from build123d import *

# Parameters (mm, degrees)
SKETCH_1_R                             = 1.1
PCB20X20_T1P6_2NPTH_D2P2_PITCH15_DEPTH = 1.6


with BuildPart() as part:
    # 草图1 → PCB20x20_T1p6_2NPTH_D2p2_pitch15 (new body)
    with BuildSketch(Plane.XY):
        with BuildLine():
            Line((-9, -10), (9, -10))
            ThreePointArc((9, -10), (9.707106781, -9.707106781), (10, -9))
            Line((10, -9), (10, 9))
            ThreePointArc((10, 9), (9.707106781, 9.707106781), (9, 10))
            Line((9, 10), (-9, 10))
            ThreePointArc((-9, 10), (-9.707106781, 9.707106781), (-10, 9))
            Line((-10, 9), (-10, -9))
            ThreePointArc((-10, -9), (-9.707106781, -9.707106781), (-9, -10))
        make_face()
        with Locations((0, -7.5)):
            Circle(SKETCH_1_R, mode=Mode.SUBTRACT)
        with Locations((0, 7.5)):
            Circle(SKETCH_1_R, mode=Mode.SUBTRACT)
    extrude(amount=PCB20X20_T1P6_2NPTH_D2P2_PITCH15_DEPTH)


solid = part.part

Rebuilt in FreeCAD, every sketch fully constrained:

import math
import FreeCAD as App
import Part
import Sketcher
from FreeCAD import Vector

doc = App.newDocument("Part")
body = doc.addObject("PartDesign::Body", "Body")

sketch1 = body.newObject("Sketcher::SketchObject", "Sketch")
sketch1.AttachmentSupport = (doc.getObject("XY_Plane"), [""])
sketch1.MapMode = "FlatFace"
sketch1.addGeometry(Part.LineSegment(Vector(-9, -10, 0), Vector(9, -10, 0)), False)
sketch1.addGeometry(Part.ArcOfCircle(Part.Circle(Vector(9, -9, 0), Vector(0, 0, 1), 1), math.radians(-90), math.radians(0)), False)
sketch1.addGeometry(Part.LineSegment(Vector(10, -9, 0), Vector(10, 9, 0)), False)
sketch1.addGeometry(Part.ArcOfCircle(Part.Circle(Vector(9, 9, 0), Vector(0, 0, 1), 1), math.radians(0), math.radians(90)), False)
sketch1.addGeometry(Part.LineSegment(Vector(9, 10, 0), Vector(-9, 10, 0)), False)
sketch1.addGeometry(Part.ArcOfCircle(Part.Circle(Vector(-9, 9, 0), Vector(0, 0, 1), 1), math.radians(90), math.radians(180)), False)
sketch1.addGeometry(Part.LineSegment(Vector(-10, 9, 0), Vector(-10, -9, 0)), False)
sketch1.addGeometry(Part.ArcOfCircle(Part.Circle(Vector(-9, -9, 0), Vector(0, 0, 1), 1), math.radians(-180), math.radians(-90)), False)
sketch1.addGeometry(Part.Circle(Vector(0, -7.5, 0), Vector(0, 0, 1), 1.1), False)
sketch1.addGeometry(Part.Circle(Vector(0, 7.5, 0), Vector(0, 0, 1), 1.1), False)
sketch1.addConstraint(Sketcher.Constraint("Tangent", 0, 2, 1, 1))
sketch1.addConstraint(Sketcher.Constraint("Tangent", 1, 2, 2, 1))
sketch1.addConstraint(Sketcher.Constraint("Tangent", 2, 2, 3, 1))
sketch1.addConstraint(Sketcher.Constraint("Tangent", 3, 2, 4, 1))
sketch1.addConstraint(Sketcher.Constraint("Tangent", 4, 2, 5, 1))
sketch1.addConstraint(Sketcher.Constraint("Tangent", 5, 2, 6, 1))
sketch1.addConstraint(Sketcher.Constraint("Tangent", 6, 2, 7, 1))
sketch1.addConstraint(Sketcher.Constraint("Tangent", 7, 2, 0, 1))
sketch1.addConstraint(Sketcher.Constraint("Horizontal", 0))
sketch1.addConstraint(Sketcher.Constraint("Vertical", 2))
sketch1.addConstraint(Sketcher.Constraint("Horizontal", 4))
sketch1.addConstraint(Sketcher.Constraint("Vertical", 6))
sketch1.addConstraint(Sketcher.Constraint("Equal", 1, 3))
sketch1.addConstraint(Sketcher.Constraint("Equal", 3, 5))
sketch1.addConstraint(Sketcher.Constraint("Equal", 5, 7))
sketch1.addConstraint(Sketcher.Constraint("Equal", 8, 9))
sketch1.addConstraint(Sketcher.Constraint("Symmetric", 1, 3, 5, 3, -1, 1))
sketch1.addConstraint(Sketcher.Constraint("Symmetric", 8, 3, 9, 3, -1, 1))
sketch1.addConstraint(Sketcher.Constraint("PointOnObject", 8, 3, -2))
sketch1.addConstraint(Sketcher.Constraint("Equal", 4, 2))
sketch1.addConstraint(Sketcher.Constraint("Radius", 1, 1.0))
sketch1.addConstraint(Sketcher.Constraint("Diameter", 8, 2.2))
sketch1.addConstraint(Sketcher.Constraint("DistanceX", 0, 1, 0, 2, 18.0))
sketch1.addConstraint(Sketcher.Constraint("DistanceY", 8, 3, 9, 3, 15.0))
pad1 = body.newObject("PartDesign::Pad", "Pad")
pad1.Profile = sketch1
pad1.Length = 1.6

doc.recompute()
